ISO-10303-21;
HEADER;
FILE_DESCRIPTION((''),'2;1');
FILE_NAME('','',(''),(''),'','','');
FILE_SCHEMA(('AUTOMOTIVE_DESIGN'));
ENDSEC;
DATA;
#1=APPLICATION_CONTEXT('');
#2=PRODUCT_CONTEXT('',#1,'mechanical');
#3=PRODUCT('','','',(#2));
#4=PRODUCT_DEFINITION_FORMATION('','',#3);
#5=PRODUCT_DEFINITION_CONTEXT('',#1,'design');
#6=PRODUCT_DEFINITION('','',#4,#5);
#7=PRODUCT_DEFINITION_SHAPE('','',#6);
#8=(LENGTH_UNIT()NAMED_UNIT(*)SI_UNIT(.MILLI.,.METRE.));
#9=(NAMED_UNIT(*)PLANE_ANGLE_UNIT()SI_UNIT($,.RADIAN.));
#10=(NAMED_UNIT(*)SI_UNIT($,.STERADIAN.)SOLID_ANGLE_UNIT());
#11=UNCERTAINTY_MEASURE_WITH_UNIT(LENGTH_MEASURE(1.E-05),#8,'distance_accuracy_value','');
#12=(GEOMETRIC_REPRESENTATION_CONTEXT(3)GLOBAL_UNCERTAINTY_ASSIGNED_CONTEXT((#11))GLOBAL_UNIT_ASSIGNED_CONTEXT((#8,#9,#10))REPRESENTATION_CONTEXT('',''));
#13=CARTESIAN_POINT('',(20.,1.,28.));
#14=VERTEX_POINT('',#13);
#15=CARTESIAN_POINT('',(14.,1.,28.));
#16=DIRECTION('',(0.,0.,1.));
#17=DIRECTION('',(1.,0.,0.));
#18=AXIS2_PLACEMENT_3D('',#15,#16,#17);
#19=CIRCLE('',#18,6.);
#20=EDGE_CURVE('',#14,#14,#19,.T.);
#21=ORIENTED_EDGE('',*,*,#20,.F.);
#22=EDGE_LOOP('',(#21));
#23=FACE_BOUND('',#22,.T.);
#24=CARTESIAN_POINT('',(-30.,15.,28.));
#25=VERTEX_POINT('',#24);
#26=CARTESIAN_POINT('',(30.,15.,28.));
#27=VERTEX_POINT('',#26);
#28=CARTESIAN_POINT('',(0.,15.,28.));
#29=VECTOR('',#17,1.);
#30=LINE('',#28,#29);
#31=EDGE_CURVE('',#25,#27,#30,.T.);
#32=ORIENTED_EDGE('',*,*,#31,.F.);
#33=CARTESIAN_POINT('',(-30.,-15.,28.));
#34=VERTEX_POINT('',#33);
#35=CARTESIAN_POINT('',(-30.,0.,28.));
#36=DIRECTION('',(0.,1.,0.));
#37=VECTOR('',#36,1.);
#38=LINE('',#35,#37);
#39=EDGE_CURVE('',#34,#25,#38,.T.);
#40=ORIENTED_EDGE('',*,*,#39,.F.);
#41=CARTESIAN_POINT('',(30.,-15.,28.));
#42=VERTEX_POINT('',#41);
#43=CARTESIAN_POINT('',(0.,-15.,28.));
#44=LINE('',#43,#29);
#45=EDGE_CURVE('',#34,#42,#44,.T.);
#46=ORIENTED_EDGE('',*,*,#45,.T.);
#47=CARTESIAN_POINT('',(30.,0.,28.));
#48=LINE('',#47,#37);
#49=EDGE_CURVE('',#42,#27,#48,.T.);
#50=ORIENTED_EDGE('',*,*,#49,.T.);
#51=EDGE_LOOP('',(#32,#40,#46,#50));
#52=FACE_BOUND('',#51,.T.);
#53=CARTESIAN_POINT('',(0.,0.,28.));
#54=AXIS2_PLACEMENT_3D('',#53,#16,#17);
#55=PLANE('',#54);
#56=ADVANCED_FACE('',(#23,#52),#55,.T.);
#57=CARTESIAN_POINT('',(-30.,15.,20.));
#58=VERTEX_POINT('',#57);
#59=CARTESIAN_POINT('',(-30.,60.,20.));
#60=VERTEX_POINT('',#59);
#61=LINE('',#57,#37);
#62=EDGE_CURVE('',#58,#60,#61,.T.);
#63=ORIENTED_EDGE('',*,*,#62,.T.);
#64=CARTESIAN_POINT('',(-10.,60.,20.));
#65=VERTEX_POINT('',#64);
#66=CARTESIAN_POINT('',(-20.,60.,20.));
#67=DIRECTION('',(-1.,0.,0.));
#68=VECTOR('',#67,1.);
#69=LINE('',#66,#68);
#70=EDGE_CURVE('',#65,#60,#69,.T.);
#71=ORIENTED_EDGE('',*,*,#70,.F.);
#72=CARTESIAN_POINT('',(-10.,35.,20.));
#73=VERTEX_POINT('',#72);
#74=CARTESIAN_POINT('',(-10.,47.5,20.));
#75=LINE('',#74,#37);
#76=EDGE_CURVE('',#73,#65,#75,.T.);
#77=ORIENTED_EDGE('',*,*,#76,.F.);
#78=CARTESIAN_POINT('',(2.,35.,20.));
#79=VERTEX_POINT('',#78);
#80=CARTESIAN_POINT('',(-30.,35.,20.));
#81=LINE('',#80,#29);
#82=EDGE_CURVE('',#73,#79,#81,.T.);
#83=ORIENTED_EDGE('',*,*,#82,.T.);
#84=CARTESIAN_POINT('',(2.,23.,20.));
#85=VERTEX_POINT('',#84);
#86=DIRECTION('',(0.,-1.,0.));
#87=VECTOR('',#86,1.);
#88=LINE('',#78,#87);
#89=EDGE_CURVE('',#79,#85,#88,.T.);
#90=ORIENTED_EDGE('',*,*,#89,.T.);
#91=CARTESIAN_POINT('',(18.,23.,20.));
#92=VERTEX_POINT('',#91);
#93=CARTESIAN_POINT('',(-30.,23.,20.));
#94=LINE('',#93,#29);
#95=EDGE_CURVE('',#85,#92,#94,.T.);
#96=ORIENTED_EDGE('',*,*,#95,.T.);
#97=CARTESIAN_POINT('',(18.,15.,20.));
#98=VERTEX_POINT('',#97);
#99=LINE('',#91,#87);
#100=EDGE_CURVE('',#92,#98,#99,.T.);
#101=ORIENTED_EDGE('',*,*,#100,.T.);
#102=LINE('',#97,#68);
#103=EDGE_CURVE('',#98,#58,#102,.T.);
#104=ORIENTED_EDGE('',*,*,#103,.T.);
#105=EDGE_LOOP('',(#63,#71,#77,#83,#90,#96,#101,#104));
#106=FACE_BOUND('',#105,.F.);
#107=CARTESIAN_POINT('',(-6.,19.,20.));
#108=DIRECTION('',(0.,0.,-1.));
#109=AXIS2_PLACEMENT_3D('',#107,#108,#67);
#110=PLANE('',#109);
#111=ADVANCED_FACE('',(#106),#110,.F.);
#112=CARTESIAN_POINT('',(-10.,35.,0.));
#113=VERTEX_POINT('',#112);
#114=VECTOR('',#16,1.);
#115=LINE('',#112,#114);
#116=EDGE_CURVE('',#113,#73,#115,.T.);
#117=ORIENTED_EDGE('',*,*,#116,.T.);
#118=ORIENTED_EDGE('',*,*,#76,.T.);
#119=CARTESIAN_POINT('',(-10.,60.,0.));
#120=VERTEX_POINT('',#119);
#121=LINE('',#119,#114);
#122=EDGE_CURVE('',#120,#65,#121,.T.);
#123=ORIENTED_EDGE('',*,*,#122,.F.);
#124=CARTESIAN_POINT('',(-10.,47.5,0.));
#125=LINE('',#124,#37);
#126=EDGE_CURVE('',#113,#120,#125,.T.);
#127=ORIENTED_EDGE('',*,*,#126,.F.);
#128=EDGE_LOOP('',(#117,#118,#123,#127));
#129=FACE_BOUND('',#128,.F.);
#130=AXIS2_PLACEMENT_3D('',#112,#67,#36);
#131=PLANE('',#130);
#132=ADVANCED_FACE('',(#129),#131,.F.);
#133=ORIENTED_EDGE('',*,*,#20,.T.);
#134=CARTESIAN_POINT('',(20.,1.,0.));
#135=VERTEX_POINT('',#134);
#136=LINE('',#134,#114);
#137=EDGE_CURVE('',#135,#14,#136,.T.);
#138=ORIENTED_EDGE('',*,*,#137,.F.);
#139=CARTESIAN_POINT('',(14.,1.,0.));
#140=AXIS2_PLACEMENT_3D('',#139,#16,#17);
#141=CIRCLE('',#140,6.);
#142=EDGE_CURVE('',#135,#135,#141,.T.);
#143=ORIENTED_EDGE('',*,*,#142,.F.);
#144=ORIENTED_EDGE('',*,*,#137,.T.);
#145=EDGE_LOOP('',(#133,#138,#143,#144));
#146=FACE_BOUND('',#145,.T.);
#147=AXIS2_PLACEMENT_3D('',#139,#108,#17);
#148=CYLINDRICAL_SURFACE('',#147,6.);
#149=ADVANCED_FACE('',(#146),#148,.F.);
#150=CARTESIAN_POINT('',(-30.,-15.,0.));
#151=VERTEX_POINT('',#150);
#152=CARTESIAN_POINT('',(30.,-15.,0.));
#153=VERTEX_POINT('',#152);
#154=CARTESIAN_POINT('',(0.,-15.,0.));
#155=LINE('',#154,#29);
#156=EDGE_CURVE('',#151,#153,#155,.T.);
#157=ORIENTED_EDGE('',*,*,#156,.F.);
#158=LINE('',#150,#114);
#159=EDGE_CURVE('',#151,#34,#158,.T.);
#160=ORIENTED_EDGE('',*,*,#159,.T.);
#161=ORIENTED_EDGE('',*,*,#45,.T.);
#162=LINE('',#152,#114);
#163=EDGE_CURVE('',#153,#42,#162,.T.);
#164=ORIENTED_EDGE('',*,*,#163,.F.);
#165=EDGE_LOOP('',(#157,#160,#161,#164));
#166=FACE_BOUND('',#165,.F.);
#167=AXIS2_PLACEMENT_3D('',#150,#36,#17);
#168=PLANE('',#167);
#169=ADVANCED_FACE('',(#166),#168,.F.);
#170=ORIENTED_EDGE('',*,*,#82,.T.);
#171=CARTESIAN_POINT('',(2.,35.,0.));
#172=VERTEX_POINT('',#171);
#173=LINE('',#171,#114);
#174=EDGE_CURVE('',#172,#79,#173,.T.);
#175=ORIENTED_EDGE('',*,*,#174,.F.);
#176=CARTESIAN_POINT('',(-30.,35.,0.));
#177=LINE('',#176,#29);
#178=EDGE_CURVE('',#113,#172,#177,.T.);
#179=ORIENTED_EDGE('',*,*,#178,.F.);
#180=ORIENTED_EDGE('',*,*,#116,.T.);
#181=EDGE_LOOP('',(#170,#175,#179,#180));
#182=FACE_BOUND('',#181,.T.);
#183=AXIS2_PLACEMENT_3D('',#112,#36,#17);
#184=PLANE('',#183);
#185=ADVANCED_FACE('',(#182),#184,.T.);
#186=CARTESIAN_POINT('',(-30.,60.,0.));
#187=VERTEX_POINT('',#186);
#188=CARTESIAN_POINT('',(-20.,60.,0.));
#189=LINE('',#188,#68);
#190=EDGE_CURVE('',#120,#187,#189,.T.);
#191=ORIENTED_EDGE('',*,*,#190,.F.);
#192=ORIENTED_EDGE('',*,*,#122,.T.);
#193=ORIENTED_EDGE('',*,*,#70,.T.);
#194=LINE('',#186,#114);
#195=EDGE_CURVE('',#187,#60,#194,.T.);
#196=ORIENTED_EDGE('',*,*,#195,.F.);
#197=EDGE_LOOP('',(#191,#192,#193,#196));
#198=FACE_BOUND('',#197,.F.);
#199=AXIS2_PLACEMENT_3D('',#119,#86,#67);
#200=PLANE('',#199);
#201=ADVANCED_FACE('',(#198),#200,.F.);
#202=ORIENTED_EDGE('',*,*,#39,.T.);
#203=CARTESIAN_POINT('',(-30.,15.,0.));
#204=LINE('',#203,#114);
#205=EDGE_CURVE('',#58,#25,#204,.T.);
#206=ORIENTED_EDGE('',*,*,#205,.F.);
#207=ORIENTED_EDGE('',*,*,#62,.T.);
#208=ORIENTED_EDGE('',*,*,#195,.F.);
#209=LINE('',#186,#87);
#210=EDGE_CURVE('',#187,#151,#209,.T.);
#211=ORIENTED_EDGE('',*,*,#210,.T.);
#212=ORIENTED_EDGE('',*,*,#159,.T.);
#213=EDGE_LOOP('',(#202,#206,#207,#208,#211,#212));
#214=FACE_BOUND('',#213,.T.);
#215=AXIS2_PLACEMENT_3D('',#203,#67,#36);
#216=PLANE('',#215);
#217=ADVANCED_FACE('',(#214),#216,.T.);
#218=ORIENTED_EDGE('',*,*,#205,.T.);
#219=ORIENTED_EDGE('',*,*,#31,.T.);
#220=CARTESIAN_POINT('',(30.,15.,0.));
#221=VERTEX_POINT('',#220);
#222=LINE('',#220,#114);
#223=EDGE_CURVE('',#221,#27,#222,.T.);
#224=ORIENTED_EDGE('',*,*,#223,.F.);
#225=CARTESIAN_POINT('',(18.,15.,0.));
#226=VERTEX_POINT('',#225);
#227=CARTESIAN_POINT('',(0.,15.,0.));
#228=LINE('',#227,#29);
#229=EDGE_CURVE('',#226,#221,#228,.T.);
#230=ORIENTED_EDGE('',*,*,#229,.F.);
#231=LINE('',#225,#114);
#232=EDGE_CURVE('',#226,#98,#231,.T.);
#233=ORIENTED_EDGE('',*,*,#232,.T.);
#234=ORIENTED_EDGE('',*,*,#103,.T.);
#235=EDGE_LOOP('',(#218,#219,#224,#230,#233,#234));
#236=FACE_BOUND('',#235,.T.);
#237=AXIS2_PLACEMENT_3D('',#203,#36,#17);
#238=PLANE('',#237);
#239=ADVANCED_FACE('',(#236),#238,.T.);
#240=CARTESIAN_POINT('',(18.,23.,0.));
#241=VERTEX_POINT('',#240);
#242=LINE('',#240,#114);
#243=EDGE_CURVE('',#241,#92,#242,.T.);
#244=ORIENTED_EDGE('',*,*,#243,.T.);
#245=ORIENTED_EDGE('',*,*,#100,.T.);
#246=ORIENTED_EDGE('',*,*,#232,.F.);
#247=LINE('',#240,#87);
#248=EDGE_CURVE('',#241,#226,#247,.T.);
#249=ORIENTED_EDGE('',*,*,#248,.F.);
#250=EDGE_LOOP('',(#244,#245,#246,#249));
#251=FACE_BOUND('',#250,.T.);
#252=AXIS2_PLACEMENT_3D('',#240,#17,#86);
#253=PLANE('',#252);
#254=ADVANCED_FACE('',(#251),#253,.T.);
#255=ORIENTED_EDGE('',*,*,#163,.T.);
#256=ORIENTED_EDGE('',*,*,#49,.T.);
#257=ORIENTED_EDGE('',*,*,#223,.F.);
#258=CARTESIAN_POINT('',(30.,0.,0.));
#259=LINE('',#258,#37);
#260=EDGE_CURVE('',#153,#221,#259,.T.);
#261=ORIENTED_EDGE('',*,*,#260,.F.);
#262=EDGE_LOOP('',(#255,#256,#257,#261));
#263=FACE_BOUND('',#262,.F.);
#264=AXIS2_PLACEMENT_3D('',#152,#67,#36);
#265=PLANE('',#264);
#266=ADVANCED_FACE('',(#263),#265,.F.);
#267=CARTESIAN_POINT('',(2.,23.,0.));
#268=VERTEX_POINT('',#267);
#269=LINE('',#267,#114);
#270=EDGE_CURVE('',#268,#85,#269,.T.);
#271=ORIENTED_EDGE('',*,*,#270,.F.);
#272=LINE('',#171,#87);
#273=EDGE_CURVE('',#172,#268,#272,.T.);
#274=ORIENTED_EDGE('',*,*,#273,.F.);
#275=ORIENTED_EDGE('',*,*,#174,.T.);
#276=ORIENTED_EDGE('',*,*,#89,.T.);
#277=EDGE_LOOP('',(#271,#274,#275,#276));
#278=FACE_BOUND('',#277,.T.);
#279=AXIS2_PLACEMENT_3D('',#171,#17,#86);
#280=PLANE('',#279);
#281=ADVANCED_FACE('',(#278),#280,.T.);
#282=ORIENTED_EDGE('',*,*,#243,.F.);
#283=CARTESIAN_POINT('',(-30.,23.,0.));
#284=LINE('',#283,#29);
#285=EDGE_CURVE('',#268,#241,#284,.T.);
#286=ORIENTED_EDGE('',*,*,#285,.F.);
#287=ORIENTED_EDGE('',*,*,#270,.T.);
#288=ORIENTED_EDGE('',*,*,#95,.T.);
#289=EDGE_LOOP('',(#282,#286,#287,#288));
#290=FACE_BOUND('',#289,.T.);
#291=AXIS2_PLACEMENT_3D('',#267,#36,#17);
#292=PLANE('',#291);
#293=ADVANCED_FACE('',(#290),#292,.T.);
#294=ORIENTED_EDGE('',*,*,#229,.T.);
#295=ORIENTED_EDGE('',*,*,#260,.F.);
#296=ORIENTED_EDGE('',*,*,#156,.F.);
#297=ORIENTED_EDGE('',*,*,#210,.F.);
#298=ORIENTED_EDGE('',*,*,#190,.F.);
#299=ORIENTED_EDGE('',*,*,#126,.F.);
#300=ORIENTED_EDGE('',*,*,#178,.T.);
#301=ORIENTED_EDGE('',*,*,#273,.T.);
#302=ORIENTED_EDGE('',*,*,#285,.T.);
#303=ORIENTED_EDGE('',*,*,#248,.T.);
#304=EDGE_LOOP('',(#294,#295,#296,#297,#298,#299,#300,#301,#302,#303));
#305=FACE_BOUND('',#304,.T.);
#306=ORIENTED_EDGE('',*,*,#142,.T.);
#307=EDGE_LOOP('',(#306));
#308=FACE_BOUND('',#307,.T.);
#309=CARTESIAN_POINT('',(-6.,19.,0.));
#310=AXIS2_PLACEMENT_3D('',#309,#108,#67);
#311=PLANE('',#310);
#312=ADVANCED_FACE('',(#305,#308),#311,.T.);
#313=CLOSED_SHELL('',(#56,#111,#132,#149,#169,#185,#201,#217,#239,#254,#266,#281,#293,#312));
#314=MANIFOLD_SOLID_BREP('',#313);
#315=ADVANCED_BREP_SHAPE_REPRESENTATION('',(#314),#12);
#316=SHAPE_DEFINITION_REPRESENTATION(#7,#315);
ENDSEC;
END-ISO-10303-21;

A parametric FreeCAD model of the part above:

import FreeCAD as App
import Part
import Sketcher

V = App.Vector


def add_polygon(sketch, points):
    """Adds a closed chain of lines whose ends are joined by coincident constraints."""
    first, n = sketch.GeometryCount, len(points)
    for a, b in zip(points, points[1:] + points[:1]):
        sketch.addGeometry(Part.LineSegment(App.Vector(*a, 0), App.Vector(*b, 0)), False)
    for i in range(n):
        sketch.addConstraint(Sketcher.Constraint("Coincident", first + i, 2, first + (i + 1) % n, 1))

doc = App.newDocument("Part")
body = doc.addObject("PartDesign::Body", "Body")

# Sketch on XY plane
sketch1 = body.newObject("Sketcher::SketchObject", "Sketch")
sketch1.AttachmentSupport = (doc.getObject("XY_Plane"), [""])
sketch1.MapMode = "FlatFace"
add_polygon(sketch1, [(-30, 15), (-30, -15), (30, -15), (30, 15)])  # lines 0-3
sketch1.addGeometry(Part.Circle(V(14, 1, 0), V(0, 0, 1), 6), False)  # 4
sketch1.addConstraint([
    Sketcher.Constraint("Vertical", 0),
    Sketcher.Constraint("Horizontal", 1),
    Sketcher.Constraint("Vertical", 2),
    Sketcher.Constraint("Horizontal", 3),
    Sketcher.Constraint("Symmetric", 0, 2, 2, 2, -1, 1),
    Sketcher.Constraint("Diameter", 4, 12.0),
    Sketcher.Constraint("DistanceX", 1, 1, 1, 2, 60.0),
    Sketcher.Constraint("DistanceY", 0, 2, 0, 1, 30.0),
    Sketcher.Constraint("DistanceX", -1, 1, 4, 3, 14.0),
    Sketcher.Constraint("DistanceY", -1, 1, 4, 3, 1.0),
])
pad1 = body.newObject("PartDesign::Pad", "Pad")
pad1.Profile = sketch1
pad1.Length = 28

# Sketch on XY plane
sketch2 = body.newObject("Sketcher::SketchObject", "Sketch001")
sketch2.AttachmentSupport = (doc.getObject("XY_Plane"), [""])
sketch2.MapMode = "FlatFace"
add_polygon(sketch2, [(18, 15), (-30, 15), (-30, 60), (-10, 60), (-10, 35), (2, 35), (2, 23), (18, 23)])  # lines 0-7
sketch2.addConstraint([
    Sketcher.Constraint("Horizontal", 0),
    Sketcher.Constraint("Vertical", 1),
    Sketcher.Constraint("Horizontal", 2),
    Sketcher.Constraint("Vertical", 3),
    Sketcher.Constraint("Horizontal", 4),
    Sketcher.Constraint("Vertical", 5),
    Sketcher.Constraint("Horizontal", 6),
    Sketcher.Constraint("Vertical", 7),
    Sketcher.Constraint("Equal", 4, 5),
    Sketcher.Constraint("DistanceX", 0, 2, 0, 1, 48.0),
    Sketcher.Constraint("DistanceX", 2, 1, 2, 2, 20.0),
    Sketcher.Constraint("DistanceX", 4, 1, 4, 2, 12.0),
    Sketcher.Constraint("DistanceY", 1, 1, 1, 2, 45.0),
    Sketcher.Constraint("DistanceY", 3, 2, 3, 1, 25.0),
    Sketcher.Constraint("DistanceX", 0, 2, -1, 1, 30.0),
    Sketcher.Constraint("DistanceY", -1, 1, 0, 2, 15.0),
])
pad2 = body.newObject("PartDesign::Pad", "Pad001")
pad2.Profile = sketch2
pad2.Length = 20

doc.recompute()
